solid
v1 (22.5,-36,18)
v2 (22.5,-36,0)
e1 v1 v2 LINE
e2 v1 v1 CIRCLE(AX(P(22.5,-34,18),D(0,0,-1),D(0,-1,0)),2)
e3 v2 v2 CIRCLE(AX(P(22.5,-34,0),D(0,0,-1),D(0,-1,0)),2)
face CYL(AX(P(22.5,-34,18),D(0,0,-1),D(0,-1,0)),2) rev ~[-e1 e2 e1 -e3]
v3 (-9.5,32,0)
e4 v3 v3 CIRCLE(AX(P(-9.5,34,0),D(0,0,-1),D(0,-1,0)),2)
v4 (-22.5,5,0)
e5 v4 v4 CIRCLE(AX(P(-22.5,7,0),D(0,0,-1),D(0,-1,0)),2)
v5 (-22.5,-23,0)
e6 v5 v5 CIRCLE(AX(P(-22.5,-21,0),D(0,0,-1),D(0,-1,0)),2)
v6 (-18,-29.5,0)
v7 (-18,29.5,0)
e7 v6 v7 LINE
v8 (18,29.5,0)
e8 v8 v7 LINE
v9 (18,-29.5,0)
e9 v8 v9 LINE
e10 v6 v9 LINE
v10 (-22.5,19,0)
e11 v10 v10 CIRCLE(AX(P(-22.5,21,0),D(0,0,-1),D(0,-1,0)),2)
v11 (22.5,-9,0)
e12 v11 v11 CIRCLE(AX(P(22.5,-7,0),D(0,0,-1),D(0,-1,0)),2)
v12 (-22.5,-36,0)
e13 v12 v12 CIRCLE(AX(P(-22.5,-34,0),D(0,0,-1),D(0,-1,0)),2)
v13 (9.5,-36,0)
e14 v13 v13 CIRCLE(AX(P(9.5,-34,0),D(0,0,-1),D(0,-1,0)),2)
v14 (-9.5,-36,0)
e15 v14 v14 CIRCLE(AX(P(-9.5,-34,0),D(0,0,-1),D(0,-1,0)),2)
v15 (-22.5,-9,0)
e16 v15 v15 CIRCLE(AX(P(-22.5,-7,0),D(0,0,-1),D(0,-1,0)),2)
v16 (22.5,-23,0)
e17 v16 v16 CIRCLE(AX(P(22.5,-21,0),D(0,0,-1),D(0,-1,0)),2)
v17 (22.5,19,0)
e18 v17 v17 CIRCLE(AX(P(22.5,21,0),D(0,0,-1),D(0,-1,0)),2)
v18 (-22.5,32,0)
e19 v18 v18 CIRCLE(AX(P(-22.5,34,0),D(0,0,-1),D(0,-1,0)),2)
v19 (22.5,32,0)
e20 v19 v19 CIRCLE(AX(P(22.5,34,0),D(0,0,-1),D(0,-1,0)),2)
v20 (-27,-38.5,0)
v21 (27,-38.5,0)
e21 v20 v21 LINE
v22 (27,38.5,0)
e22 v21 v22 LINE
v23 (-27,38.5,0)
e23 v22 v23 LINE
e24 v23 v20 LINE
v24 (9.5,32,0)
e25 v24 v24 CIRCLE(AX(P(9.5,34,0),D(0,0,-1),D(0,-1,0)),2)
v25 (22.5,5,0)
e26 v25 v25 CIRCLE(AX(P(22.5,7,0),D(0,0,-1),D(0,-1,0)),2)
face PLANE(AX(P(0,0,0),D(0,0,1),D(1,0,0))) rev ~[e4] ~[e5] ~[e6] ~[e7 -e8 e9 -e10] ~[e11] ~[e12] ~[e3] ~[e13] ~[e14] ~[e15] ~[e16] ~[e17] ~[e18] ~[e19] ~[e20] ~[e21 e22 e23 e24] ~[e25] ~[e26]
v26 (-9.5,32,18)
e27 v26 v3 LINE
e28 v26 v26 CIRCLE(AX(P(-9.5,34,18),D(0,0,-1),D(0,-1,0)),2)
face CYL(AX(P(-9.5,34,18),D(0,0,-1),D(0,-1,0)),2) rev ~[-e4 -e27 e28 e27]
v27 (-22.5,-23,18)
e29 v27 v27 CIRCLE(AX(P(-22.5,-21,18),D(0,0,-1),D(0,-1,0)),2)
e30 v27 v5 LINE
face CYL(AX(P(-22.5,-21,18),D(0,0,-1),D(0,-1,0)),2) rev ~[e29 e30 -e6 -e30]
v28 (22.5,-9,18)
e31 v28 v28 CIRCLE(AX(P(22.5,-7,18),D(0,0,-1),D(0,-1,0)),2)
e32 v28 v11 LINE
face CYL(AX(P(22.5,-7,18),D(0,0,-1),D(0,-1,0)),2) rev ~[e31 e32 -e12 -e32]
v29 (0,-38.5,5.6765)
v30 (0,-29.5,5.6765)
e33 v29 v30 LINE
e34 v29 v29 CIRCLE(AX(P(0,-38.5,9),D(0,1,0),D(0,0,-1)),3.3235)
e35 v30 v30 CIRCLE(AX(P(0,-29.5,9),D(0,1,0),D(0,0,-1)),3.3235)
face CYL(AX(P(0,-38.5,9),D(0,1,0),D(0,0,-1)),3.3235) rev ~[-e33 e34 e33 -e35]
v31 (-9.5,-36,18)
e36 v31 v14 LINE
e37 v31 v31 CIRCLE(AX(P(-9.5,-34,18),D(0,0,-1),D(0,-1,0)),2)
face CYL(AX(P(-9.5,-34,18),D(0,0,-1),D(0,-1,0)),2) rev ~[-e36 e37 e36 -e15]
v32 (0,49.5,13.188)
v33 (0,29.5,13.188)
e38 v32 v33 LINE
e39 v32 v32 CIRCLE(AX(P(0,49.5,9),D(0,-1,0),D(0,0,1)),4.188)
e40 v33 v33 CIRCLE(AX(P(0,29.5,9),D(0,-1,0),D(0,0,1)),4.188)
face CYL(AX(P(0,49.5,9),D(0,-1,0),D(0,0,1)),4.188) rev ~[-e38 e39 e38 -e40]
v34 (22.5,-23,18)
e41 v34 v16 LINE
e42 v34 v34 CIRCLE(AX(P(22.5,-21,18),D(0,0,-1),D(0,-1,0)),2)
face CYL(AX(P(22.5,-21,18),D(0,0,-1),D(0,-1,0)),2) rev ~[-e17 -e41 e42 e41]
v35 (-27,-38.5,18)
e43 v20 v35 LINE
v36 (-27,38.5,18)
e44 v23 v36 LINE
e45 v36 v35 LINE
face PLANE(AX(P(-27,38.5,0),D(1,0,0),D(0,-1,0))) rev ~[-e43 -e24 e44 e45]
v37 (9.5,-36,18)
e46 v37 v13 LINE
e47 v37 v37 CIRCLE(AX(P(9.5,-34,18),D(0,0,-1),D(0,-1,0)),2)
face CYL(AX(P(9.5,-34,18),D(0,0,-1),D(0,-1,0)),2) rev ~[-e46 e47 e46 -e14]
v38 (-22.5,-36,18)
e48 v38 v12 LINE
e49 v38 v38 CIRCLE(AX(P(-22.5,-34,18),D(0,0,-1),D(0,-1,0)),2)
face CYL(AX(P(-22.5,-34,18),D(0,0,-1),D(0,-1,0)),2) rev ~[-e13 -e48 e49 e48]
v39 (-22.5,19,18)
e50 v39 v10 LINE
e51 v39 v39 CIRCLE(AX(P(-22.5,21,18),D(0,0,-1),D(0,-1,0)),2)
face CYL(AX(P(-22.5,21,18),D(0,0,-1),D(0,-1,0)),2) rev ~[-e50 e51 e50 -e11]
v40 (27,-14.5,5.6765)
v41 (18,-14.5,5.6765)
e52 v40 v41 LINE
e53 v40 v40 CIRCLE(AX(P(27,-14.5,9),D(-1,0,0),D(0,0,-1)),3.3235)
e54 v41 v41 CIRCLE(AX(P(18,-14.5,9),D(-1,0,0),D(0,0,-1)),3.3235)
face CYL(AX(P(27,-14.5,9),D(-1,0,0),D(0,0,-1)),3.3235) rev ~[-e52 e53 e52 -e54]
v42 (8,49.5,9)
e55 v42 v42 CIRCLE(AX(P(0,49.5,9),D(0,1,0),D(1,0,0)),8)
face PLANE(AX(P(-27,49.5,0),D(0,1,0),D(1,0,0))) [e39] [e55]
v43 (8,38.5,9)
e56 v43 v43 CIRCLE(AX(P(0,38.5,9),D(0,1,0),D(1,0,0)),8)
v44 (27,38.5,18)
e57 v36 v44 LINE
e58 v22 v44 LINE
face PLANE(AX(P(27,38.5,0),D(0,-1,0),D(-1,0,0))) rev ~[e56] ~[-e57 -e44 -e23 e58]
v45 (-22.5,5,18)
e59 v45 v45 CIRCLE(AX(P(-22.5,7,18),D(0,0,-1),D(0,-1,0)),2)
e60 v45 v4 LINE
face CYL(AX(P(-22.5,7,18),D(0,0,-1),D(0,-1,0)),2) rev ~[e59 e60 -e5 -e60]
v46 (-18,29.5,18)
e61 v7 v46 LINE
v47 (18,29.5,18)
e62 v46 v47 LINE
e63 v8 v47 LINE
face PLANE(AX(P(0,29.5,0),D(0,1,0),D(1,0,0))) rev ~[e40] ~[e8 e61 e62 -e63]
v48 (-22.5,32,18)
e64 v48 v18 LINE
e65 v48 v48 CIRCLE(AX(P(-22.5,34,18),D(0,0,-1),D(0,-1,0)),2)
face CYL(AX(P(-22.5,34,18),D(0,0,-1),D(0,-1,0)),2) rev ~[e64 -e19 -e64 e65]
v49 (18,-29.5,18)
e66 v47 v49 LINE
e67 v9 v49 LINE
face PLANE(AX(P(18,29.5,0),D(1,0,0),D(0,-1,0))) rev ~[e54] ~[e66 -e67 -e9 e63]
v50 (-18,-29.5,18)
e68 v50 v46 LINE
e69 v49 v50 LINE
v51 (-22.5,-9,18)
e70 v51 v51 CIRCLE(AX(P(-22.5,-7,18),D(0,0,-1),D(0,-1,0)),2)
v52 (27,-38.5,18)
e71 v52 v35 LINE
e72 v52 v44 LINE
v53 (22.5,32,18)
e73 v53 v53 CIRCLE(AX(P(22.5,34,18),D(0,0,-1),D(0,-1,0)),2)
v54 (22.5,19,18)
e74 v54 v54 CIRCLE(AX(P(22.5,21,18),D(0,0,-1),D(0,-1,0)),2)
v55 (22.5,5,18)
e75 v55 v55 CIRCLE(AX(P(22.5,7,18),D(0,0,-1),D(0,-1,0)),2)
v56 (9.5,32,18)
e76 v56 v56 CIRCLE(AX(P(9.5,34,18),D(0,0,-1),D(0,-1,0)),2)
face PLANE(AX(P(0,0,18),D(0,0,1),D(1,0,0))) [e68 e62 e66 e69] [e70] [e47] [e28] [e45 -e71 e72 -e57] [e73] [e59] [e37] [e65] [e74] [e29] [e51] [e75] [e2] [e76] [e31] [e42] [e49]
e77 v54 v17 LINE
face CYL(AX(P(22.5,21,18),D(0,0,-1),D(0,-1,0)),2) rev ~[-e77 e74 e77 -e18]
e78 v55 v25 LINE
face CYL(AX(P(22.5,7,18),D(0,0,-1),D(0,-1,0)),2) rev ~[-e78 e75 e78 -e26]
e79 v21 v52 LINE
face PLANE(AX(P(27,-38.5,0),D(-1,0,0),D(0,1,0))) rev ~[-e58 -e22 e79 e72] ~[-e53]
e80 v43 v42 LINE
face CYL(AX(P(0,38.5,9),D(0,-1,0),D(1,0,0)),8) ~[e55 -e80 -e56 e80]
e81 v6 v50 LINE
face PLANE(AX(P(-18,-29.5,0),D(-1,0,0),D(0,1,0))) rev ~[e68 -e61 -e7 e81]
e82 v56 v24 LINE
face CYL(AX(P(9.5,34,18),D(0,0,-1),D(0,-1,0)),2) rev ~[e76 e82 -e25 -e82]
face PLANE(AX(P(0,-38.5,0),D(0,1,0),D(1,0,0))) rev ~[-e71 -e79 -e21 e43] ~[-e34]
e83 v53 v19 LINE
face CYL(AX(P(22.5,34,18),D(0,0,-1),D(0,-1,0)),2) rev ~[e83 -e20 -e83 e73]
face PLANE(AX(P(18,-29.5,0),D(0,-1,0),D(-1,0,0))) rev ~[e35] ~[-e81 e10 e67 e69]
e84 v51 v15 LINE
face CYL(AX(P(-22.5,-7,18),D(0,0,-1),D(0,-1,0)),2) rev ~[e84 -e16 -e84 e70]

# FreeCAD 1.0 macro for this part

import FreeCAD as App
import Part
import Sketcher

doc = App.newDocument("Part")
body = doc.addObject("PartDesign::Body", "Body")

# Sketch on XY plane
sketch1 = doc.addObject("Sketcher::SketchObject", "Sketch")
body.addObject(sketch1)
sketch1.AttachmentSupport = (doc.XY_Plane, [""])
sketch1.MapMode = "FlatFace"
sketch1.addGeometry([
    Part.LineSegment(App.Vector(27, -38, 0), App.Vector(27, 38, 0)),  # 0
    Part.LineSegment(App.Vector(27, 38, 0), App.Vector(-27, 38, 0)),  # 1
    Part.LineSegment(App.Vector(-27, 38, 0), App.Vector(-27, -38, 0)),  # 2
    Part.LineSegment(App.Vector(-27, -38, 0), App.Vector(27, -38, 0)),  # 3
    Part.LineSegment(App.Vector(18, -30, 0), App.Vector(-18, -30, 0)),  # 4
    Part.LineSegment(App.Vector(-18, -30, 0), App.Vector(-18, 30, 0)),  # 5
    Part.LineSegment(App.Vector(-18, 30, 0), App.Vector(18, 30, 0)),  # 6
    Part.LineSegment(App.Vector(18, 30, 0), App.Vector(18, -30, 0)),  # 7
], False)
sketch1.addConstraint([
    Sketcher.Constraint("Coincident", 0, 2, 1, 1),
    Sketcher.Constraint("Coincident", 1, 2, 2, 1),
    Sketcher.Constraint("Coincident", 2, 2, 3, 1),
    Sketcher.Constraint("Coincident", 3, 2, 0, 1),
    Sketcher.Constraint("Coincident", 4, 2, 5, 1),
    Sketcher.Constraint("Coincident", 5, 2, 6, 1),
    Sketcher.Constraint("Coincident", 6, 2, 7, 1),
    Sketcher.Constraint("Coincident", 7, 2, 4, 1),
    Sketcher.Constraint("Vertical", 0),
    Sketcher.Constraint("Horizontal", 1),
    Sketcher.Constraint("Vertical", 2),
    Sketcher.Constraint("Horizontal", 3),
    Sketcher.Constraint("Horizontal", 4),
    Sketcher.Constraint("Vertical", 5),
    Sketcher.Constraint("Horizontal", 6),
    Sketcher.Constraint("Vertical", 7),
    Sketcher.Constraint("Symmetric", 0, 2, 2, 2, -1, 1),
    Sketcher.Constraint("Symmetric", 4, 2, 6, 2, -1, 1),
    Sketcher.Constraint("DistanceX", 1, 2, 1, 1, 54.0),
    Sketcher.Constraint("DistanceX", 4, 2, 4, 1, 36.0),
    Sketcher.Constraint("DistanceY", 0, 1, 0, 2, 77.0),
    Sketcher.Constraint("DistanceY", 5, 1, 5, 2, 59.0),
])
pad1 = doc.addObject("PartDesign::Pad", "Pad")
body.addObject(pad1)
pad1.Profile = sketch1
pad1.Length = 18

# Sketch on XY plane
sketch2 = doc.addObject("Sketcher::SketchObject", "Sketch001")
body.addObject(sketch2)
sketch2.AttachmentSupport = (doc.XY_Plane, [""])
sketch2.MapMode = "FlatFace"
sketch2.AttachmentOffset = App.Placement(App.Vector(0, 0, 18), App.Rotation())
sketch2.addGeometry([
    Part.Circle(App.Vector(-9.5, 34, 0), App.Vector(0, 0, 1), 2),  # 0
    Part.Circle(App.Vector(9.5, 34, 0), App.Vector(0, 0, 1), 2),  # 1
    Part.Circle(App.Vector(22.5, 34, 0), App.Vector(0, 0, 1), 2),  # 2
    Part.Circle(App.Vector(-22.5, 34, 0), App.Vector(0, 0, 1), 2),  # 3
    Part.Circle(App.Vector(-22.5, 21, 0), App.Vector(0, 0, 1), 2),  # 4
    Part.Circle(App.Vector(-22.5, 7, 0), App.Vector(0, 0, 1), 2),  # 5
    Part.Circle(App.Vector(-22.5, -7, 0), App.Vector(0, 0, 1), 2),  # 6
    Part.Circle(App.Vector(-22.5, -21, 0), App.Vector(0, 0, 1), 2),  # 7
    Part.Circle(App.Vector(-22.5, -34, 0), App.Vector(0, 0, 1), 2),  # 8
    Part.Circle(App.Vector(-9.5, -34, 0), App.Vector(0, 0, 1), 2),  # 9
    Part.Circle(App.Vector(9.5, -34, 0), App.Vector(0, 0, 1), 2),  # 10
    Part.Circle(App.Vector(22.5, -34, 0), App.Vector(0, 0, 1), 2),  # 11
    Part.Circle(App.Vector(22.5, 21, 0), App.Vector(0, 0, 1), 2),  # 12
    Part.Circle(App.Vector(22.5, 7, 0), App.Vector(0, 0, 1), 2),  # 13
    Part.Circle(App.Vector(22.5, -7, 0), App.Vector(0, 0, 1), 2),  # 14
    Part.Circle(App.Vector(22.5, -21, 0), App.Vector(0, 0, 1), 2),  # 15
], False)
sketch2.addConstraint([
    Sketcher.Constraint("Equal", 0, 1),
    Sketcher.Constraint("Equal", 1, 2),
    Sketcher.Constraint("Equal", 2, 3),
    Sketcher.Constraint("Equal", 3, 4),
    Sketcher.Constraint("Equal", 4, 5),
    Sketcher.Constraint("Equal", 5, 6),
    Sketcher.Constraint("Equal", 6, 7),
    Sketcher.Constraint("Equal", 7, 8),
    Sketcher.Constraint("Equal", 8, 9),
    Sketcher.Constraint("Equal", 9, 10),
    Sketcher.Constraint("Equal", 10, 11),
    Sketcher.Constraint("Equal", 11, 12),
    Sketcher.Constraint("Equal", 12, 13),
    Sketcher.Constraint("Equal", 13, 14),
    Sketcher.Constraint("Equal", 14, 15),
    Sketcher.Constraint("Symmetric", 2, 3, 8, 3, -1, 1),
    Sketcher.Constraint("Symmetric", 1, 3, 9, 3, -1, 1),
    Sketcher.Constraint("Symmetric", 0, 3, 10, 3, -1, 1),
    Sketcher.Constraint("Symmetric", 3, 3, 11, 3, -1, 1),
    Sketcher.Constraint("Symmetric", 7, 3, 12, 3, -1, 1),
    Sketcher.Constraint("Symmetric", 6, 3, 13, 3, -1, 1),
    Sketcher.Constraint("Symmetric", 5, 3, 14, 3, -1, 1),
    Sketcher.Constraint("Symmetric", 4, 3, 15, 3, -1, 1),
    Sketcher.Constraint("Symmetric", 0, 3, 1, 3, -2),
    Sketcher.Constraint("Symmetric", 2, 3, 3, 3, -2),
    Sketcher.Constraint("Symmetric", 4, 3, 12, 3, -2),
    Sketcher.Constraint("Symmetric", 5, 3, 13, 3, -2),
    Sketcher.Constraint("Horizontal", 1, 3, 2, 3),
    Sketcher.Constraint("Vertical", 3, 3, 4, 3),
    Sketcher.Constraint("Vertical", 4, 3, 5, 3),
    Sketcher.Constraint("Diameter", 0, 4.0),
    Sketcher.Constraint("DistanceY", -1, 1, 0, 3, 34.0),
    Sketcher.Constraint("DistanceY", -1, 1, 4, 3, 21.0),
    Sketcher.Constraint("DistanceY", -1, 1, 5, 3, 7.0),
    Sketcher.Constraint("DistanceX", 0, 3, 1, 3, 19.0),
    Sketcher.Constraint("DistanceX", 1, 3, 2, 3, 13.0),
])
doc.recompute()
hole = doc.addObject("PartDesign::Hole", "Hole")
body.addObject(hole)
hole.Profile = sketch2
hole.ThreadType = "None"
hole.Diameter = 4
hole.DepthType = "ThroughAll"

# Sketch on XZ plane
sketch3 = doc.addObject("Sketcher::SketchObject", "Sketch002")
body.addObject(sketch3)
sketch3.AttachmentSupport = (doc.XZ_Plane, [""])
sketch3.MapMode = "FlatFace"
sketch3.AttachmentOffset = App.Placement(App.Vector(0, 0, 38.5), App.Rotation())
sketch3.addGeometry(Part.Circle(App.Vector(0, 9, 0), App.Vector(0, 0, 1), 3.3), False)
sketch3.addConstraint([
    Sketcher.Constraint("PointOnObject", 0, 3, -2),
    Sketcher.Constraint("Diameter", 0, 6.647),
    Sketcher.Constraint("DistanceY", -1, 1, 0, 3, 9.0),
])
doc.recompute()
hole2 = doc.addObject("PartDesign::Hole", "Hole001")
body.addObject(hole2)
hole2.Profile = sketch3
hole2.ThreadType = "None"
hole2.Diameter = 6.647
hole2.DepthType = "Dimension"
hole2.Depth = 22.2
hole2.DrillPoint = "Flat"

# Sketch on XZ plane
sketch4 = doc.addObject("Sketcher::SketchObject", "Sketch003")
body.addObject(sketch4)
sketch4.AttachmentSupport = (doc.XZ_Plane, [""])
sketch4.MapMode = "FlatFace"
sketch4.AttachmentOffset = App.Placement(App.Vector(0, 0, -38.5), App.Rotation())
sketch4.addGeometry(Part.Circle(App.Vector(0, 9, 0), App.Vector(0, 0, 1), 8), False)
sketch4.addConstraint([
    Sketcher.Constraint("PointOnObject", 0, 3, -2),
    Sketcher.Constraint("Diameter", 0, 16.0),
    Sketcher.Constraint("DistanceY", -1, 1, 0, 3, 9.0),
])
pad2 = doc.addObject("PartDesign::Pad", "Pad001")
body.addObject(pad2)
pad2.Profile = sketch4
pad2.Length = 11
pad2.Reversed = True

# Sketch on XZ plane
sketch5 = doc.addObject("Sketcher::SketchObject", "Sketch004")
body.addObject(sketch5)
sketch5.AttachmentSupport = (doc.XZ_Plane, [""])
sketch5.MapMode = "FlatFace"
sketch5.AttachmentOffset = App.Placement(App.Vector(0, 0, -49.5), App.Rotation())
sketch5.addGeometry(Part.Circle(App.Vector(0, 9, 0), App.Vector(0, 0, 1), 4.2), False)
sketch5.addConstraint([
    Sketcher.Constraint("PointOnObject", 0, 3, -2),
    Sketcher.Constraint("Diameter", 0, 8.376),
    Sketcher.Constraint("DistanceY", -1, 1, 0, 3, 9.0),
])
doc.recompute()
hole3 = doc.addObject("PartDesign::Hole", "Hole002")
body.addObject(hole3)
hole3.Profile = sketch5
hole3.ThreadType = "None"
hole3.Diameter = 8.376
hole3.DepthType = "Dimension"
hole3.Depth = 27.3
hole3.DrillPoint = "Flat"
hole3.Reversed = True

# Sketch on YZ plane
sketch6 = doc.addObject("Sketcher::SketchObject", "Sketch005")
body.addObject(sketch6)
sketch6.AttachmentSupport = (doc.YZ_Plane, [""])
sketch6.MapMode = "FlatFace"
sketch6.AttachmentOffset = App.Placement(App.Vector(0, 0, 27), App.Rotation())
sketch6.addGeometry(Part.Circle(App.Vector(-14.5, 9, 0), App.Vector(0, 0, 1), 3.3), False)
sketch6.addConstraint([
    Sketcher.Constraint("Diameter", 0, 6.647),
    Sketcher.Constraint("DistanceY", -1, 1, 0, 3, 9.0),
    Sketcher.Constraint("DistanceX", 0, 3, -1, 1, 14.5),
])
doc.recompute()
hole4 = doc.addObject("PartDesign::Hole", "Hole003")
body.addObject(hole4)
hole4.Profile = sketch6
hole4.ThreadType = "None"
hole4.Diameter = 6.647
hole4.DepthType = "Dimension"
hole4.Depth = 22.2
hole4.DrillPoint = "Flat"

doc.recompute()
